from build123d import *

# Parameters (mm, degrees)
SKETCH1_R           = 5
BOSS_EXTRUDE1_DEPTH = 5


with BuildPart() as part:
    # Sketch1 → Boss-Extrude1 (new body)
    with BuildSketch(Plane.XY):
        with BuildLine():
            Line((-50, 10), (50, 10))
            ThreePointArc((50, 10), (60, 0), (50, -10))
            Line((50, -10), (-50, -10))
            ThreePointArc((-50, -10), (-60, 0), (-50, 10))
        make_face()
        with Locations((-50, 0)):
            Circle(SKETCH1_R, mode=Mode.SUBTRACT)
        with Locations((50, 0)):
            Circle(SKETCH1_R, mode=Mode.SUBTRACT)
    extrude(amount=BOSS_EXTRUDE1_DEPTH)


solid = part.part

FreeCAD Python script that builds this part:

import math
import FreeCAD as App
import Part
import Sketcher
Q = App.Units.Quantity

doc = App.newDocument("Part")
params = doc.addObject("Spreadsheet::Sheet", "Params")
for row, (alias, value) in enumerate([
    ("sketch1_diameter", "10 mm"),
    ("sketch1_radius", "10 mm"),
    ("sketch1_width", "100 mm"),
    ("pad1_length", "5 mm"),
], start=1):
    params.set(f"A{row}", alias)
    params.set(f"B{row}", "=" + value)
    params.setAlias(f"B{row}", alias)

body = doc.addObject("PartDesign::Body", "Body")

# Sketch on XY plane
sketch1 = body.newObject("Sketcher::SketchObject", "Sketch")
sketch1.AttachmentSupport = (doc.getObject("XY_Plane"), [""])
sketch1.MapMode = "FlatFace"
sketch1.addGeometry(Part.LineSegment(App.Vector(50, 10, 0), App.Vector(-50, 10, 0)), False)
sketch1.addGeometry(Part.ArcOfCircle(Part.Circle(App.Vector(-50, 0, 0), App.Vector(0, 0, 1), 10), math.radians(90), math.radians(270)), False)
sketch1.addGeometry(Part.LineSegment(App.Vector(-50, -10, 0), App.Vector(50, -10, 0)), False)
sketch1.addGeometry(Part.ArcOfCircle(Part.Circle(App.Vector(50, 0, 0), App.Vector(0, 0, 1), 10), math.radians(-90), math.radians(90)), False)
sketch1.addGeometry(Part.Circle(App.Vector(50, 0, 0), App.Vector(0, 0, 1), 5), False)
sketch1.addGeometry(Part.Circle(App.Vector(-50, 0, 0), App.Vector(0, 0, 1), 5), False)
sketch1.addConstraint(Sketcher.Constraint("Tangent", 0, 2, 1, 1))
sketch1.addConstraint(Sketcher.Constraint("Tangent", 1, 2, 2, 1))
sketch1.addConstraint(Sketcher.Constraint("Tangent", 2, 2, 3, 1))
sketch1.addConstraint(Sketcher.Constraint("Tangent", 3, 2, 0, 1))
sketch1.addConstraint(Sketcher.Constraint("Horizontal", 0))
sketch1.addConstraint(Sketcher.Constraint("Horizontal", 2))
sketch1.addConstraint(Sketcher.Constraint("Coincident", 4, 3, 3, 3))
sketch1.addConstraint(Sketcher.Constraint("Coincident", 5, 3, 1, 3))
sketch1.addConstraint(Sketcher.Constraint("Equal", 4, 5))
sketch1.addConstraint(Sketcher.Constraint("Symmetric", 1, 3, 3, 3, -1, 1))
sketch1.addConstraint(Sketcher.Constraint("Diameter", 4, Q("10 mm")))
sketch1.addConstraint(Sketcher.Constraint("Radius", 1, Q("10 mm")))
sketch1.addConstraint(Sketcher.Constraint("DistanceX", 0, 2, 0, 1, Q("100 mm")))
sketch1.setExpression("Constraints[10]", "Params.sketch1_diameter")
sketch1.setExpression("Constraints[11]", "Params.sketch1_radius")
sketch1.setExpression("Constraints[12]", "Params.sketch1_width")
pad1 = body.newObject("PartDesign::Pad", "Pad")
pad1.Profile = sketch1
pad1.setExpression("Length", "Params.pad1_length")

doc.recompute()
